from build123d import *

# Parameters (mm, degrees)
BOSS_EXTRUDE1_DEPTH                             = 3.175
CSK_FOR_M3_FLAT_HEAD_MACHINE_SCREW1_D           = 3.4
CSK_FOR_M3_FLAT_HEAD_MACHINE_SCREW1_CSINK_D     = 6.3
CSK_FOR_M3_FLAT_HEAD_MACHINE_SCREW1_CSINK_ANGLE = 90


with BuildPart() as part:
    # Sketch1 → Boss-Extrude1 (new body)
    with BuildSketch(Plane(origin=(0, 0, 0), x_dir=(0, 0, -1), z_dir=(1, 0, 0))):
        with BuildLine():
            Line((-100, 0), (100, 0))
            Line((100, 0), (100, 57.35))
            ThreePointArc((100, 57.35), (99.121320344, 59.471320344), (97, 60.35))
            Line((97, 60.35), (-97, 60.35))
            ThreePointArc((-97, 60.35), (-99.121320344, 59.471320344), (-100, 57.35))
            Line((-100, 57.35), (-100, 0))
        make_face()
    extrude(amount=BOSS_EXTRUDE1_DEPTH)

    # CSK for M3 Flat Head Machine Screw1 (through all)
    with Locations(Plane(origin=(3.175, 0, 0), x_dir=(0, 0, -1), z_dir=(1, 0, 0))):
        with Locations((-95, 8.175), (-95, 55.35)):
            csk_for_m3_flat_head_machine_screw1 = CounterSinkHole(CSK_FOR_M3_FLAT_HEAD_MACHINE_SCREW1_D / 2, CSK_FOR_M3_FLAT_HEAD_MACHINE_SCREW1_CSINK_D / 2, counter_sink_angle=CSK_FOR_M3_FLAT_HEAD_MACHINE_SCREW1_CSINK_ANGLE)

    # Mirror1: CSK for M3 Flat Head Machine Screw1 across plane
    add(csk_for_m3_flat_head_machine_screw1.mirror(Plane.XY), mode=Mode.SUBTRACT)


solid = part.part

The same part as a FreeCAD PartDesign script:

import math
import FreeCAD as App
import Part
import Sketcher
from FreeCAD import Vector

doc = App.newDocument("Part")
body = doc.addObject("PartDesign::Body", "Body")

# Sketch on YZ plane
sketch1 = body.newObject("Sketcher::SketchObject", "Sketch")
sketch1.AttachmentSupport = (doc.getObject("YZ_Plane"), [""])
sketch1.MapMode = "FlatFace"
sketch1.addGeometry(Part.LineSegment(Vector(0, 100, 0), Vector(0, -100, 0)), False)
sketch1.addGeometry(Part.LineSegment(Vector(0, -100, 0), Vector(57.4, -100, 0)), False)
sketch1.addGeometry(Part.ArcOfCircle(Part.Circle(Vector(57.4, -97, 0), Vector(0, 0, 1), 3), math.radians(-90), math.radians(0)), False)
sketch1.addGeometry(Part.LineSegment(Vector(60.4, -97, 0), Vector(60.4, 97, 0)), False)
sketch1.addGeometry(Part.ArcOfCircle(Part.Circle(Vector(57.4, 97, 0), Vector(0, 0, 1), 3), math.radians(0), math.radians(90)), False)
sketch1.addGeometry(Part.LineSegment(Vector(57.4, 100, 0), Vector(0, 100, 0)), False)
sketch1.addConstraint(Sketcher.Constraint("Coincident", 0, 2, 1, 1))
sketch1.addConstraint(Sketcher.Constraint("Tangent", 1, 2, 2, 1))
sketch1.addConstraint(Sketcher.Constraint("Tangent", 2, 2, 3, 1))
sketch1.addConstraint(Sketcher.Constraint("Tangent", 3, 2, 4, 1))
sketch1.addConstraint(Sketcher.Constraint("Tangent", 4, 2, 5, 1))
sketch1.addConstraint(Sketcher.Constraint("Coincident", 5, 2, 0, 1))
sketch1.addConstraint(Sketcher.Constraint("Vertical", 0))
sketch1.addConstraint(Sketcher.Constraint("Horizontal", 1))
sketch1.addConstraint(Sketcher.Constraint("Vertical", 3))
sketch1.addConstraint(Sketcher.Constraint("Horizontal", 5))
sketch1.addConstraint(Sketcher.Constraint("Equal", 2, 4))
sketch1.addConstraint(Sketcher.Constraint("Symmetric", 0, 2, 5, 2, -1, 1))
sketch1.addConstraint(Sketcher.Constraint("Radius", 2, 3.0))
sketch1.addConstraint(Sketcher.Constraint("DistanceY", 0, 2, 0, 1, 200.0))
sketch1.addConstraint(Sketcher.Constraint("DistanceX", 1, 1, 1, 2, 57.35))
pad1 = body.newObject("PartDesign::Pad", "Pad")
pad1.Profile = sketch1
pad1.Length = 3.175

# Sketch on YZ plane
sketch2 = body.newObject("Sketcher::SketchObject", "Sketch001")
sketch2.AttachmentSupport = (doc.getObject("YZ_Plane"), [""])
sketch2.MapMode = "FlatFace"
sketch2.AttachmentOffset = App.Placement(Vector(0, 0, 3.175), App.Rotation())
sketch2.addGeometry(Part.Circle(Vector(8.2, 95, 0), Vector(0, 0, 1), 1.7), False)
sketch2.addGeometry(Part.Circle(Vector(55.4, 95, 0), Vector(0, 0, 1), 1.7), False)
sketch2.addConstraint(Sketcher.Constraint("Equal", 0, 1))
sketch2.addConstraint(Sketcher.Constraint("Horizontal", 0, 3, 1, 3))
sketch2.addConstraint(Sketcher.Constraint("Diameter", 0, 3.4))
sketch2.addConstraint(Sketcher.Constraint("DistanceY", -1, 1, 0, 3, 95.0))
sketch2.addConstraint(Sketcher.Constraint("DistanceX", -1, 1, 1, 3, 55.35))
sketch2.addConstraint(Sketcher.Constraint("DistanceX", -1, 1, 0, 3, 8.175))
doc.recompute()
hole = body.newObject("PartDesign::Hole", "Hole")
hole.Profile = sketch2
hole.ThreadType = "None"
hole.Diameter = 3.4
hole.DepthType = "ThroughAll"
hole.HoleCutType = "Countersink"
hole.HoleCutDiameter = 6.3
hole.HoleCutCountersinkAngle = 90
doc.recompute()

mirrored = body.newObject("PartDesign::Mirrored", "Mirrored")
mirrored.Originals = [hole]
mirrored.MirrorPlane = (doc.getObject("XY_Plane"), [""])
body.Tip = mirrored

doc.recompute()
